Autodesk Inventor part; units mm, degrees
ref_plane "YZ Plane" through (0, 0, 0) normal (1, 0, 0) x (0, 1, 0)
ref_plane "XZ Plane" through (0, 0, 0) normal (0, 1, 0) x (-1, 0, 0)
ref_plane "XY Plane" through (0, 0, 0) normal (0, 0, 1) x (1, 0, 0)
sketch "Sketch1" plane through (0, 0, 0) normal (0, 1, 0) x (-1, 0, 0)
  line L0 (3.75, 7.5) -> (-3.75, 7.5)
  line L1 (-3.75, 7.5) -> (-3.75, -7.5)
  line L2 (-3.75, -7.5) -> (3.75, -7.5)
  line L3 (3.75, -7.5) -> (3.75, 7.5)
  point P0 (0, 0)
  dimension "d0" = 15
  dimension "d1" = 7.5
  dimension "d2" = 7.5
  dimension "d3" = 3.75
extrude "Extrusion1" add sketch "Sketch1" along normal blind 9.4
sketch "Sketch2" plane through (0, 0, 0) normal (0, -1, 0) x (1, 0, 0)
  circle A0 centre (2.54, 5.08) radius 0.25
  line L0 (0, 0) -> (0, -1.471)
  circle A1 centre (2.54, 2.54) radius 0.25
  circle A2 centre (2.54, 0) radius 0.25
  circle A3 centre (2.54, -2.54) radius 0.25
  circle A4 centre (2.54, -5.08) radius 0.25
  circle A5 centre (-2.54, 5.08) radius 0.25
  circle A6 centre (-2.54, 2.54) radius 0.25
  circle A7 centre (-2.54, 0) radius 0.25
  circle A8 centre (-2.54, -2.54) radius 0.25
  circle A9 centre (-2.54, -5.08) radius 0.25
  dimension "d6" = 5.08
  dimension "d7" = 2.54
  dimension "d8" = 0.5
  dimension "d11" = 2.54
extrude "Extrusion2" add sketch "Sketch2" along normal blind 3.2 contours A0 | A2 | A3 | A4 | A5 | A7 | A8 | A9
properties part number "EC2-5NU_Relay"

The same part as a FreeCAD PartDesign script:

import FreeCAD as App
import Part
import Sketcher
from FreeCAD import Vector
Q = App.Units.Quantity

doc = App.newDocument("Part")
body = doc.addObject("PartDesign::Body", "Body")

# Sketch on XZ plane
sketch1 = body.newObject("Sketcher::SketchObject", "Sketch")
sketch1.AttachmentSupport = (doc.getObject("XZ_Plane"), [""])
sketch1.MapMode = "FlatFace"
sketch1.addGeometry([
    Part.LineSegment(Vector(-3.75, -7.5, 0), Vector(-3.75, 7.5, 0)),
    Part.LineSegment(Vector(-3.75, 7.5, 0), Vector(3.75, 7.5, 0)),
    Part.LineSegment(Vector(3.75, 7.5, 0), Vector(3.75, -7.5, 0)),
    Part.LineSegment(Vector(3.75, -7.5, 0), Vector(-3.75, -7.5, 0)),
], False)
sketch1.addConstraint([
    Sketcher.Constraint("Coincident", 0, 2, 1, 1),
    Sketcher.Constraint("Coincident", 1, 2, 2, 1),
    Sketcher.Constraint("Coincident", 2, 2, 3, 1),
    Sketcher.Constraint("Coincident", 3, 2, 0, 1),
    Sketcher.Constraint("Vertical", 0),
    Sketcher.Constraint("Horizontal", 1),
    Sketcher.Constraint("Vertical", 2),
    Sketcher.Constraint("Horizontal", 3),
    Sketcher.Constraint("Symmetric", 0, 2, 2, 2, -1, 1),
    Sketcher.Constraint("DistanceY", 0, 1, 0, 2, Q("15 mm")),
    Sketcher.Constraint("DistanceX", 1, 1, 1, 2, Q("7.5 mm")),
])
pad1 = body.newObject("PartDesign::Pad", "Pad")
pad1.Profile = sketch1
pad1.Length = 9.4
pad1.Reversed = True

# Sketch on XZ plane
sketch2 = body.newObject("Sketcher::SketchObject", "Sketch001")
sketch2.AttachmentSupport = (doc.getObject("XZ_Plane"), [""])
sketch2.MapMode = "FlatFace"
sketch2.addGeometry([
    Part.Circle(Vector(2.54, 5.08, 0), Vector(0, 0, 1), 0.25),  # 0
    Part.Circle(Vector(2.54, 0, 0), Vector(0, 0, 1), 0.25),  # 1
    Part.Circle(Vector(2.54, -2.54, 0), Vector(0, 0, 1), 0.25),  # 2
    Part.Circle(Vector(2.54, -5.08, 0), Vector(0, 0, 1), 0.25),  # 3
    Part.Circle(Vector(-2.54, 5.08, 0), Vector(0, 0, 1), 0.25),  # 4
    Part.Circle(Vector(-2.54, 0, 0), Vector(0, 0, 1), 0.25),  # 5
    Part.Circle(Vector(-2.54, -2.54, 0), Vector(0, 0, 1), 0.25),  # 6
    Part.Circle(Vector(-2.54, -5.08, 0), Vector(0, 0, 1), 0.25),  # 7
], False)
sketch2.addConstraint([
    Sketcher.Constraint("Equal", 0, 1),
    Sketcher.Constraint("Equal", 1, 2),
    Sketcher.Constraint("Equal", 2, 3),
    Sketcher.Constraint("Equal", 3, 4),
    Sketcher.Constraint("Equal", 4, 5),
    Sketcher.Constraint("Equal", 5, 6),
    Sketcher.Constraint("Equal", 6, 7),
    Sketcher.Constraint("Symmetric", 3, 3, 4, 3, -1, 1),
    Sketcher.Constraint("Symmetric", 1, 3, 5, 3, -1, 1),
    Sketcher.Constraint("Symmetric", 0, 3, 7, 3, -1, 1),
    Sketcher.Constraint("Symmetric", 0, 3, 4, 3, -2),
    Sketcher.Constraint("Symmetric", 2, 3, 6, 3, -2),
    Sketcher.Constraint("PointOnObject", 1, 3, -1),
    Sketcher.Constraint("Vertical", 0, 3, 1, 3),
    Sketcher.Constraint("Vertical", 1, 3, 2, 3),
    Sketcher.Constraint("Diameter", 0, Q("0.5 mm")),
    Sketcher.Constraint("DistanceX", -1, 1, 0, 3, Q("2.54 mm")),
    Sketcher.Constraint("DistanceY", -1, 1, 0, 3, Q("5.08 mm")),
    Sketcher.Constraint("DistanceY", 2, 3, -1, 1, Q("2.54 mm")),
])
pad2 = body.newObject("PartDesign::Pad", "Pad001")
pad2.Profile = sketch2
pad2.Length = 3.2

doc.recompute()
